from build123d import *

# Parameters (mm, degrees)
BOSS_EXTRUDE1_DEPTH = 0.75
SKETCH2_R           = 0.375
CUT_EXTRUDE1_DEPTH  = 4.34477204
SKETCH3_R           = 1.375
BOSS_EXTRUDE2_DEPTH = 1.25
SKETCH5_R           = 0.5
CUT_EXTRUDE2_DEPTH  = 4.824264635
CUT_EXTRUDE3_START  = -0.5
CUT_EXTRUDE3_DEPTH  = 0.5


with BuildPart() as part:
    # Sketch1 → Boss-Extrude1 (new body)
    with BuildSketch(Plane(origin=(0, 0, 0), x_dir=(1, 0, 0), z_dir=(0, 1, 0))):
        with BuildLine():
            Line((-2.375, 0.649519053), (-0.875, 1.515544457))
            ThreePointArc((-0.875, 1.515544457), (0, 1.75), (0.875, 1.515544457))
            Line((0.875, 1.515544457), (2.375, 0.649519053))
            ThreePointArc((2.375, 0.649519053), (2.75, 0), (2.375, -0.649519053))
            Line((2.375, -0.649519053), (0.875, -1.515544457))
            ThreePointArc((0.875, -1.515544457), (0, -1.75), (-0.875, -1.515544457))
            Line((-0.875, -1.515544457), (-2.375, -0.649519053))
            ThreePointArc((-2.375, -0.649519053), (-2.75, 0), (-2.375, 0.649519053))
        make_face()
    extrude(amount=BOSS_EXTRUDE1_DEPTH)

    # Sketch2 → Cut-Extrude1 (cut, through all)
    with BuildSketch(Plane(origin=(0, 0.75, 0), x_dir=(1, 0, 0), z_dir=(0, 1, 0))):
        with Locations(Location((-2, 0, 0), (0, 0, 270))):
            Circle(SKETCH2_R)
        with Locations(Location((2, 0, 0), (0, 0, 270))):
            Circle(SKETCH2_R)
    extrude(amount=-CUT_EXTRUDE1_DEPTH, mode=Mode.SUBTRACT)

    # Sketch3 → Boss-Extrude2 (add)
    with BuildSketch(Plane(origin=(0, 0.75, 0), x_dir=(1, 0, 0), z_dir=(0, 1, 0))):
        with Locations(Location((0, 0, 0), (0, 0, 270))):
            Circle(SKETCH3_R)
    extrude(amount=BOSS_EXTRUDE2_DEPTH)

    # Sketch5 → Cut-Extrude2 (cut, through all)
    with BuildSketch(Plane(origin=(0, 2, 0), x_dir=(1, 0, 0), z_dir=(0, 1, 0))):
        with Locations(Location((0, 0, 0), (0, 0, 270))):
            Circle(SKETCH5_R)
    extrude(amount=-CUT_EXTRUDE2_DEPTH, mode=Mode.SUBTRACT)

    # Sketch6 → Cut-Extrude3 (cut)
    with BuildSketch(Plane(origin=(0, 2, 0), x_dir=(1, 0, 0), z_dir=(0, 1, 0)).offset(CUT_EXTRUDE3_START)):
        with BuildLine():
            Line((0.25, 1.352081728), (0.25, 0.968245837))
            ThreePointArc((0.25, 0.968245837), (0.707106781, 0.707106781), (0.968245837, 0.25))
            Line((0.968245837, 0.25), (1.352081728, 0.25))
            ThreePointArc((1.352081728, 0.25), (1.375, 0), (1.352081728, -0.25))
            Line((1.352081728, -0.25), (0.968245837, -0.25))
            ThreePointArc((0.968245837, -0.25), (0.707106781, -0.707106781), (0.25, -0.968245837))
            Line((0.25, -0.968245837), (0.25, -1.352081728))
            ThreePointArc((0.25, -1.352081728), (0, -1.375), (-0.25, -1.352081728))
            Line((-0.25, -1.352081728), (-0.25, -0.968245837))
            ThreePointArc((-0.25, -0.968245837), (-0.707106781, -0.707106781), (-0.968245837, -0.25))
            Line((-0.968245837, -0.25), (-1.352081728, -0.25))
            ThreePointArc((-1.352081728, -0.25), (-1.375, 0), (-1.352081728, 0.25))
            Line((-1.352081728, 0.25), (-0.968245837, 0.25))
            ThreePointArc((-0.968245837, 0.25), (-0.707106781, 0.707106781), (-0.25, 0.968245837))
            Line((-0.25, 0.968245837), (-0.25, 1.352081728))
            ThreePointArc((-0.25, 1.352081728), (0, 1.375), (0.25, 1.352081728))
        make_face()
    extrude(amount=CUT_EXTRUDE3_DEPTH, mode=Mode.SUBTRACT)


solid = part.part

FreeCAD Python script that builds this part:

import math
import FreeCAD as App
import Part
import Sketcher

V = App.Vector
Q = App.Units.Quantity

doc = App.newDocument("Part")
params = doc.addObject("Spreadsheet::Sheet", "Params")
for row, (alias, value) in enumerate([
    ("sketch1_radius", "0.75 mm"),
    ("sketch1_radius2", "1.75 mm"),
    ("pad1_length", "0.75 mm"),
    ("sketch2_diameter", "0.75 mm"),
    ("sketch3_diameter", "2.75 mm"),
    ("pad2_length", "1.25 mm"),
    ("sketch4_diameter", "1 mm"),
    ("sketch5_radius", "1 mm"),
    ("pocket3_length", "0.5 mm"),
], start=1):
    params.set(f"A{row}", alias)
    params.set(f"B{row}", "=" + value)
    params.setAlias(f"B{row}", alias)

body = doc.addObject("PartDesign::Body", "Body")

# Sketch on XZ plane
sketch1 = body.newObject("Sketcher::SketchObject", "Sketch")
sketch1.AttachmentSupport = (doc.getObject("XZ_Plane"), [""])
sketch1.MapMode = "FlatFace"
sketch1.addGeometry([
    Part.LineSegment(V(-0.875, -1.515544, 0), V(-2.375, -0.649519, 0)),  # 0
    Part.ArcOfCircle(Part.Circle(V(-2, 0, 0), V(0, 0, 1), 0.75), math.radians(120), math.radians(240)),  # 1
    Part.LineSegment(V(-2.375, 0.649519, 0), V(-0.875, 1.515544, 0)),  # 2
    Part.ArcOfCircle(Part.Circle(V(0, 0, 0), V(0, 0, 1), 1.75), math.radians(60), math.radians(120)),  # 3
    Part.LineSegment(V(0.875, 1.515544, 0), V(2.375, 0.649519, 0)),  # 4
    Part.ArcOfCircle(Part.Circle(V(2, 0, 0), V(0, 0, 1), 0.75), math.radians(-60), math.radians(60)),  # 5
    Part.LineSegment(V(2.375, -0.649519, 0), V(0.875, -1.515544, 0)),  # 6
    Part.ArcOfCircle(Part.Circle(V(0, 0, 0), V(0, 0, 1), 1.75), math.radians(-120), math.radians(-60)),  # 7
], False)
sketch1.addConstraint([
    Sketcher.Constraint("Tangent", 0, 2, 1, 2),
    Sketcher.Constraint("Tangent", 1, 1, 2, 1),
    Sketcher.Constraint("Tangent", 2, 2, 3, 2),
    Sketcher.Constraint("Tangent", 3, 1, 4, 1),
    Sketcher.Constraint("Tangent", 4, 2, 5, 2),
    Sketcher.Constraint("Tangent", 5, 1, 6, 1),
    Sketcher.Constraint("Tangent", 6, 2, 7, 2),
    Sketcher.Constraint("Tangent", 7, 1, 0, 1),
    Sketcher.Constraint("Coincident", 3, 3, -1, 1),
    Sketcher.Constraint("Coincident", 7, 3, -1, 1),
    Sketcher.Constraint("Equal", 1, 5),
    Sketcher.Constraint("Equal", 3, 7),
    Sketcher.Constraint("Symmetric", 1, 3, 5, 3, -1, 1),
    Sketcher.Constraint("PointOnObject", 1, 3, -1),
    Sketcher.Constraint("Angle", 0, Q("150 deg")),
    Sketcher.Constraint("Radius", 1, Q("0.75 mm")),
    Sketcher.Constraint("Radius", 3, Q("1.75 mm")),
])
sketch1.setExpression("Constraints[15]", "Params.sketch1_radius")
sketch1.setExpression("Constraints[16]", "Params.sketch1_radius2")
pad1 = body.newObject("PartDesign::Pad", "Pad")
pad1.Profile = sketch1
pad1.setExpression("Length", "Params.pad1_length")
pad1.Reversed = True

# Sketch on XZ plane
sketch2 = body.newObject("Sketcher::SketchObject", "Sketch001")
sketch2.AttachmentSupport = (doc.getObject("XZ_Plane"), [""])
sketch2.MapMode = "FlatFace"
sketch2.AttachmentOffset = App.Placement(V(0, 0, -0.75), App.Rotation())
sketch2.addGeometry([
    Part.Circle(V(-2, 0, 0), V(0, 0, 1), 0.375),
    Part.Circle(V(2, 0, 0), V(0, 0, 1), 0.375),
], False)
sketch2.addConstraint([
    Sketcher.Constraint("Equal", 0, 1),
    Sketcher.Constraint("Symmetric", 0, 3, 1, 3, -1, 1),
    Sketcher.Constraint("PointOnObject", 0, 3, -1),
    Sketcher.Constraint("Diameter", 0, Q("0.75 mm")),
    Sketcher.Constraint("DistanceX", 0, 3, -1, 1, Q("2 mm")),
])
sketch2.setExpression("Constraints[3]", "Params.sketch2_diameter")
pocket1 = body.newObject("PartDesign::Pocket", "Pocket")
pocket1.Profile = sketch2
pocket1.Type = "ThroughAll"
pocket1.Reversed = True

# Sketch on XZ plane
sketch3 = body.newObject("Sketcher::SketchObject", "Sketch002")
sketch3.AttachmentSupport = (doc.getObject("XZ_Plane"), [""])
sketch3.MapMode = "FlatFace"
sketch3.AttachmentOffset = App.Placement(V(0, 0, -0.75), App.Rotation())
sketch3.addGeometry(Part.Circle(V(0, 0, 0), V(0, 0, 1), 1.375), False)
sketch3.addConstraint([
    Sketcher.Constraint("Coincident", 0, 3, -1, 1),
    Sketcher.Constraint("Diameter", 0, Q("2.75 mm")),
])
sketch3.setExpression("Constraints[1]", "Params.sketch3_diameter")
pad2 = body.newObject("PartDesign::Pad", "Pad001")
pad2.Profile = sketch3
pad2.setExpression("Length", "Params.pad2_length")
pad2.Reversed = True

# Sketch on XZ plane
sketch4 = body.newObject("Sketcher::SketchObject", "Sketch003")
sketch4.AttachmentSupport = (doc.getObject("XZ_Plane"), [""])
sketch4.MapMode = "FlatFace"
sketch4.AttachmentOffset = App.Placement(V(0, 0, -2), App.Rotation())
sketch4.addGeometry(Part.Circle(V(0, 0, 0), V(0, 0, 1), 0.5), False)
sketch4.addConstraint([
    Sketcher.Constraint("Coincident", 0, 3, -1, 1),
    Sketcher.Constraint("Diameter", 0, Q("1 mm")),
])
sketch4.setExpression("Constraints[1]", "Params.sketch4_diameter")
pocket2 = body.newObject("PartDesign::Pocket", "Pocket001")
pocket2.Profile = sketch4
pocket2.Type = "ThroughAll"
pocket2.Reversed = True

# Sketch on XZ plane
sketch5 = body.newObject("Sketcher::SketchObject", "Sketch004")
sketch5.AttachmentSupport = (doc.getObject("XZ_Plane"), [""])
sketch5.MapMode = "FlatFace"
sketch5.AttachmentOffset = App.Placement(V(0, 0, -1.5), App.Rotation())
sketch5.addGeometry([
    Part.LineSegment(V(0.25, -0.968246, 0), V(0.25, -1.352082, 0)),  # 0
    Part.ArcOfCircle(Part.Circle(V(0, 0, 0), V(0, 0, 1), 1.375), math.radians(-100.475682), math.radians(-79.524318)),  # 1
    Part.LineSegment(V(-0.25, -1.352082, 0), V(-0.25, -0.968246, 0)),  # 2
    Part.ArcOfCircle(Part.Circle(V(0, 0, 0), V(0, 0, 1), 1), math.radians(-165.522488), math.radians(-104.477512)),  # 3
    Part.LineSegment(V(-0.968246, -0.25, 0), V(-1.352082, -0.25, 0)),  # 4
    Part.ArcOfCircle(Part.Circle(V(0, 0, 0), V(0, 0, 1), 1.375), math.radians(169.524318), math.radians(190.475682)),  # 5
    Part.LineSegment(V(-1.352082, 0.25, 0), V(-0.968246, 0.25, 0)),  # 6
    Part.ArcOfCircle(Part.Circle(V(0, 0, 0), V(0, 0, 1), 1), math.radians(104.477512), math.radians(165.522488)),  # 7
    Part.LineSegment(V(-0.25, 0.968246, 0), V(-0.25, 1.352082, 0)),  # 8
    Part.ArcOfCircle(Part.Circle(V(0, 0, 0), V(0, 0, 1), 1.375), math.radians(79.524318), math.radians(100.475682)),  # 9
    Part.LineSegment(V(0.25, 1.352082, 0), V(0.25, 0.968246, 0)),  # 10
    Part.ArcOfCircle(Part.Circle(V(0, 0, 0), V(0, 0, 1), 1), math.radians(14.477512), math.radians(75.522488)),  # 11
    Part.LineSegment(V(0.968246, 0.25, 0), V(1.352082, 0.25, 0)),  # 12
    Part.ArcOfCircle(Part.Circle(V(0, 0, 0), V(0, 0, 1), 1.375), math.radians(-10.475682), math.radians(10.475682)),  # 13
    Part.LineSegment(V(1.352082, -0.25, 0), V(0.968246, -0.25, 0)),  # 14
    Part.ArcOfCircle(Part.Circle(V(0, 0, 0), V(0, 0, 1), 1), math.radians(-75.522488), math.radians(-14.477512)),  # 15
], False)
sketch5.addConstraint([
    Sketcher.Constraint("Coincident", 0, 2, 1, 2),
    Sketcher.Constraint("Coincident", 1, 1, 2, 1),
    Sketcher.Constraint("Coincident", 2, 2, 3, 2),
    Sketcher.Constraint("Coincident", 3, 1, 4, 1),
    Sketcher.Constraint("Coincident", 4, 2, 5, 2),
    Sketcher.Constraint("Coincident", 5, 1, 6, 1),
    Sketcher.Constraint("Coincident", 6, 2, 7, 2),
    Sketcher.Constraint("Coincident", 7, 1, 8, 1),
    Sketcher.Constraint("Coincident", 8, 2, 9, 2),
    Sketcher.Constraint("Coincident", 9, 1, 10, 1),
    Sketcher.Constraint("Coincident", 10, 2, 11, 2),
    Sketcher.Constraint("Coincident", 11, 1, 12, 1),
    Sketcher.Constraint("Coincident", 12, 2, 13, 2),
    Sketcher.Constraint("Coincident", 13, 1, 14, 1),
    Sketcher.Constraint("Coincident", 14, 2, 15, 2),
    Sketcher.Constraint("Coincident", 15, 1, 0, 1),
    Sketcher.Constraint("Vertical", 0),
    Sketcher.Constraint("Vertical", 2),
    Sketcher.Constraint("Horizontal", 4),
    Sketcher.Constraint("Horizontal", 6),
    Sketcher.Constraint("Vertical", 8),
    Sketcher.Constraint("Vertical", 10),
    Sketcher.Constraint("Horizontal", 12),
    Sketcher.Constraint("Horizontal", 14),
    Sketcher.Constraint("Coincident", 1, 3, -1, 1),
    Sketcher.Constraint("Coincident", 3, 3, -1, 1),
    Sketcher.Constraint("Coincident", 5, 3, -1, 1),
    Sketcher.Constraint("Coincident", 7, 3, -1, 1),
    Sketcher.Constraint("Coincident", 9, 3, -1, 1),
    Sketcher.Constraint("Coincident", 11, 3, -1, 1),
    Sketcher.Constraint("Coincident", 13, 3, -1, 1),
    Sketcher.Constraint("Coincident", 15, 3, -1, 1),
    Sketcher.Constraint("Equal", 1, 5),
    Sketcher.Constraint("Equal", 3, 7),
    Sketcher.Constraint("Equal", 5, 9),
    Sketcher.Constraint("Equal", 7, 11),
    Sketcher.Constraint("Equal", 9, 13),
    Sketcher.Constraint("Equal", 11, 15),
    Sketcher.Constraint("Horizontal", 0, 2, 1, 1),
    Sketcher.Constraint("Horizontal", 8, 2, 9, 1),
    Sketcher.Constraint("Horizontal", 6, 2, 11, 1),
    Sketcher.Constraint("Horizontal", 4, 2, 13, 1),
    Sketcher.Constraint("Vertical", 4, 2, 5, 1),
    Sketcher.Constraint("Vertical", 2, 2, 7, 1),
    Sketcher.Constraint("Equal", 14, 0),
    Sketcher.Constraint("Radius", 3, Q("1 mm")),
    Sketcher.Constraint("Radius", 1, Q("1.375 mm")),
    Sketcher.Constraint("DistanceX", 1, 1, 0, 2, Q("0.5 mm")),
])
sketch5.setExpression("Constraints[45]", "Params.sketch5_radius")
pocket3 = body.newObject("PartDesign::Pocket", "Pocket002")
pocket3.Profile = sketch5
pocket3.setExpression("Length", "Params.pocket3_length")

doc.recompute()
